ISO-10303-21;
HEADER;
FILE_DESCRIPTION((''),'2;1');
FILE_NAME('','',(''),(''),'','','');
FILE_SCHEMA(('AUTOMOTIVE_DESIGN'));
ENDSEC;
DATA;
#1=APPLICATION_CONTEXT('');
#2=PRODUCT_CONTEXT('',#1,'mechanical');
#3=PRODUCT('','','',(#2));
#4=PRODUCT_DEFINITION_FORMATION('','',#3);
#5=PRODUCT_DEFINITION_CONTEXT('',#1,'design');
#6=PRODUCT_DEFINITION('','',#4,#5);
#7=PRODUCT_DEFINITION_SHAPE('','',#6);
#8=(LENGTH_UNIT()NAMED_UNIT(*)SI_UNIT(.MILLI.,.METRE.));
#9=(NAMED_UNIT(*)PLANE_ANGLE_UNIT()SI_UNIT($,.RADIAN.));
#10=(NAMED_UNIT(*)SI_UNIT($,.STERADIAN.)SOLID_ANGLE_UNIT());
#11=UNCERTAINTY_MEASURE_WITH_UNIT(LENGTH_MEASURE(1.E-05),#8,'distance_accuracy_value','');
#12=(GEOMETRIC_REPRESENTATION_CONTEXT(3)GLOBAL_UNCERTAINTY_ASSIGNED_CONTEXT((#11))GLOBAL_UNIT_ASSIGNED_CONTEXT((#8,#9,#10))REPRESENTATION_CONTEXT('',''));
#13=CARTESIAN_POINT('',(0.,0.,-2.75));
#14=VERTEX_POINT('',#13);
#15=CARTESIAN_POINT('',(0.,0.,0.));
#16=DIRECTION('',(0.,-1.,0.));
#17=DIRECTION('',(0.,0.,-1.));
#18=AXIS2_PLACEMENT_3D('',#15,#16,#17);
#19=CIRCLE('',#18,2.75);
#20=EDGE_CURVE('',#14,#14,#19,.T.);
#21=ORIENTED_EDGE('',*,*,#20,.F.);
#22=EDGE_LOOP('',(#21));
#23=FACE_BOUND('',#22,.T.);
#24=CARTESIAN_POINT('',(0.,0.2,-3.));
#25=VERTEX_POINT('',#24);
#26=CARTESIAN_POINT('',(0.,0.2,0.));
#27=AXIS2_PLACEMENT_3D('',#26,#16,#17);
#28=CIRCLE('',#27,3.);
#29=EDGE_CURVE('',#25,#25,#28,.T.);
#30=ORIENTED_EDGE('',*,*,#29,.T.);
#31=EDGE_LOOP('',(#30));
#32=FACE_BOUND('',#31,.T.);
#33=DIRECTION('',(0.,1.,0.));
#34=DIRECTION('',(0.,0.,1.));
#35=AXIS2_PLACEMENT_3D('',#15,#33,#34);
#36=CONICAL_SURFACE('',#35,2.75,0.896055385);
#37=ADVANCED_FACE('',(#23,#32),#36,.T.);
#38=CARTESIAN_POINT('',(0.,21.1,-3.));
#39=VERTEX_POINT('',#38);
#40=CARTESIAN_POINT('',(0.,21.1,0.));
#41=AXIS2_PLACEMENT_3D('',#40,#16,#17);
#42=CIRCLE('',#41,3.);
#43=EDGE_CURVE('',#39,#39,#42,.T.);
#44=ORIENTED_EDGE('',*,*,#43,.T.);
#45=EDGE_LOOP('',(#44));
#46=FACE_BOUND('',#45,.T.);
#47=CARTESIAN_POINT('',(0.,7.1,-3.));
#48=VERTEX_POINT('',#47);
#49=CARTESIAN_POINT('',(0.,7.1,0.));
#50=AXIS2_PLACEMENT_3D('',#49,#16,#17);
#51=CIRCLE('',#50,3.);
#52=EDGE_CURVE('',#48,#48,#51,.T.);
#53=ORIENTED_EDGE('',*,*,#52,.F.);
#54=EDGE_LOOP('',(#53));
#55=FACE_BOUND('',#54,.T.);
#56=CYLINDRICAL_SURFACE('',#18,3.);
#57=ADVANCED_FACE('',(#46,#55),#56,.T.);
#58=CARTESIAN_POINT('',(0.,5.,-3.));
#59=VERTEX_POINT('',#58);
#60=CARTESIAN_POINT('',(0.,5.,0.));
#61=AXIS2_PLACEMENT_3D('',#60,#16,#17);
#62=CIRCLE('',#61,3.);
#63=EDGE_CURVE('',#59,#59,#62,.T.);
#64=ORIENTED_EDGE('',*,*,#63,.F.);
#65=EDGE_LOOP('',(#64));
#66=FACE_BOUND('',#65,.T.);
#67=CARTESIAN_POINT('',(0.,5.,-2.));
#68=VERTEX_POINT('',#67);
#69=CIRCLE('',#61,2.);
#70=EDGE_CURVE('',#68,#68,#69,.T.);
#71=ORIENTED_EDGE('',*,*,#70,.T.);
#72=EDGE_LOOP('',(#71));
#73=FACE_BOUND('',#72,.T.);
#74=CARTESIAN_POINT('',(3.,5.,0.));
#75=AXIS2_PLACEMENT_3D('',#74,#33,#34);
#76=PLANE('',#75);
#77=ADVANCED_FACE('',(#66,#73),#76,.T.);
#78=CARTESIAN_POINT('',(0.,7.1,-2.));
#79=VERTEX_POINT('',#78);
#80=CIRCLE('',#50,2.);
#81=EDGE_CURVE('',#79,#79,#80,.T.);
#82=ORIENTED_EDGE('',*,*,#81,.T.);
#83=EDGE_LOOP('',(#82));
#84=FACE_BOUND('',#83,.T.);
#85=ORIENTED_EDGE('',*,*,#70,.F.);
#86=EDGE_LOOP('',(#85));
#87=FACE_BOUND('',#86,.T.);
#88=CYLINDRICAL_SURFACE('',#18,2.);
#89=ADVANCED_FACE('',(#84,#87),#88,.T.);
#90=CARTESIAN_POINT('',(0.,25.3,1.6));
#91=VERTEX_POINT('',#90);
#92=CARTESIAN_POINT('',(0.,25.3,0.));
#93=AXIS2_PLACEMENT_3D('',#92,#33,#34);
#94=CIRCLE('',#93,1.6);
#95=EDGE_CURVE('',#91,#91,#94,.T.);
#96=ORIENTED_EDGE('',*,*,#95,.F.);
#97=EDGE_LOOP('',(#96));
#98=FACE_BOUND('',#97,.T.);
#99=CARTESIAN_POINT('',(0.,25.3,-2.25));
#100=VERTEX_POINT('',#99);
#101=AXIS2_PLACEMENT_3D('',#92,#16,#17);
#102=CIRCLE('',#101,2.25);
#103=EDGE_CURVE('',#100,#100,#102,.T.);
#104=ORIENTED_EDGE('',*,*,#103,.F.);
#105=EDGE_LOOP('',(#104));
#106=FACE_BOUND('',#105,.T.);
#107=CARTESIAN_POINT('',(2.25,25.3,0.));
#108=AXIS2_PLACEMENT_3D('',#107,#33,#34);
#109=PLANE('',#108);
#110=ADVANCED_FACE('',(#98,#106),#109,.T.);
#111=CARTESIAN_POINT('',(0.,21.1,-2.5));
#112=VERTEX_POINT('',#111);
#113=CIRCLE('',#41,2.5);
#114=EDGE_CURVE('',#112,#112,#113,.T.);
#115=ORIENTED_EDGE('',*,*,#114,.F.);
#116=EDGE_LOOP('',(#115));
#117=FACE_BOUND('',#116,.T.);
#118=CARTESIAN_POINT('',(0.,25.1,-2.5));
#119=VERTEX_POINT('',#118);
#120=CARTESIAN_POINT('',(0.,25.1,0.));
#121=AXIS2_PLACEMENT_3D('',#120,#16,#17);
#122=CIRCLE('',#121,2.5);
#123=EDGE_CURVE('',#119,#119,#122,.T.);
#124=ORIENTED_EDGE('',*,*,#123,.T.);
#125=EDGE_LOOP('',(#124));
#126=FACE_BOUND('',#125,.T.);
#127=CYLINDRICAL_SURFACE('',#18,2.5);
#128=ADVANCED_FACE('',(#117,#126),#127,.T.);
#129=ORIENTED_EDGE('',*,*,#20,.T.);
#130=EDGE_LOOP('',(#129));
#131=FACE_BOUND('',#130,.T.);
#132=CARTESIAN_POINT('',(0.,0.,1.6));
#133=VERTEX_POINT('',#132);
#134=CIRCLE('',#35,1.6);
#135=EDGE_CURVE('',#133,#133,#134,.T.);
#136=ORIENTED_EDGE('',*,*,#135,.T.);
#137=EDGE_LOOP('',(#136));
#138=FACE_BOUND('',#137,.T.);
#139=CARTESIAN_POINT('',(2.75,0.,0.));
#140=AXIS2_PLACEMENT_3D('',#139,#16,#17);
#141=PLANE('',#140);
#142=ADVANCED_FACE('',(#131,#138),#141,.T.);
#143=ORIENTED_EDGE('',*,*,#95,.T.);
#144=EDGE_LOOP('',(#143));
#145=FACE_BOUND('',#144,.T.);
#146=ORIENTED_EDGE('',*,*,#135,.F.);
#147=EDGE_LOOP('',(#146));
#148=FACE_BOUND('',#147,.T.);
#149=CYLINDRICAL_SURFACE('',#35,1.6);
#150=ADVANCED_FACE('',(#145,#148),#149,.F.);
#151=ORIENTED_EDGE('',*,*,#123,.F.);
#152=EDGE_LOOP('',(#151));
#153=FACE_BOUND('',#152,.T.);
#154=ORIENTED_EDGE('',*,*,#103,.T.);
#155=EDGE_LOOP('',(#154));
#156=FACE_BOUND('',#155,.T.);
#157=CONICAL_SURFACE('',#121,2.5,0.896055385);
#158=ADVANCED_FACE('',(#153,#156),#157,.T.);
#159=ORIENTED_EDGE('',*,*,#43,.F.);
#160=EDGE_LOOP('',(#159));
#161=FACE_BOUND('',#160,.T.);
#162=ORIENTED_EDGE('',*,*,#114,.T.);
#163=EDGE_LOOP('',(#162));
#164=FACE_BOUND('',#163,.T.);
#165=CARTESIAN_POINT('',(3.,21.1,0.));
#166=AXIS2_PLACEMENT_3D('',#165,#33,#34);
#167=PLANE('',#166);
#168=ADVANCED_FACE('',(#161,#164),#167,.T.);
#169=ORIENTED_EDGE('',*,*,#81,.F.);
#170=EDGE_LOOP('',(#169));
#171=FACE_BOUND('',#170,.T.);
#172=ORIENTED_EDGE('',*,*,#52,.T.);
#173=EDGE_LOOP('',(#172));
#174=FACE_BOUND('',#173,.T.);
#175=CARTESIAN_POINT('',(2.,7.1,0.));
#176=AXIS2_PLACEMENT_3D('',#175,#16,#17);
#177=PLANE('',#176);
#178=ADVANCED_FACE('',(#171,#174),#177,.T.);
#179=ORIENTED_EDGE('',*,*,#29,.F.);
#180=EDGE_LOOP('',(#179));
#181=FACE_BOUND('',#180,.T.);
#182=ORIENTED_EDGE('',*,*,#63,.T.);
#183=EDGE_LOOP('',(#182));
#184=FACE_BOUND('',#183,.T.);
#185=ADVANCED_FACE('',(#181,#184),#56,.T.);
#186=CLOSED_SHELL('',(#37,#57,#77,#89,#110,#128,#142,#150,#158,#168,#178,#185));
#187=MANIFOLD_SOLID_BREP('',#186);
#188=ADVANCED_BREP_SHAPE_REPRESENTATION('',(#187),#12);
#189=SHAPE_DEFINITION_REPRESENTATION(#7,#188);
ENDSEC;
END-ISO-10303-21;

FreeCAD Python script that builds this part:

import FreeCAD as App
import Part
import Sketcher
from FreeCAD import Vector

doc = App.newDocument("Part")
body = doc.addObject("PartDesign::Body", "Body")

# Sketch on XY plane
sketch1 = body.newObject("Sketcher::SketchObject", "Sketch")
sketch1.AttachmentSupport = (doc.getObject("XY_Plane"), [""])
sketch1.MapMode = "FlatFace"
sketch1.addGeometry(Part.LineSegment(Vector(2.75, 0, 0), Vector(3, 0.2, 0)), False)
sketch1.addGeometry(Part.LineSegment(Vector(3, 0.2, 0), Vector(3, 5, 0)), False)
sketch1.addGeometry(Part.LineSegment(Vector(3, 5, 0), Vector(2, 5, 0)), False)
sketch1.addGeometry(Part.LineSegment(Vector(2, 5, 0), Vector(2, 7.1, 0)), False)
sketch1.addGeometry(Part.LineSegment(Vector(2, 7.1, 0), Vector(3, 7.1, 0)), False)
sketch1.addGeometry(Part.LineSegment(Vector(3, 7.1, 0), Vector(3, 21.1, 0)), False)
sketch1.addGeometry(Part.LineSegment(Vector(3, 21.1, 0), Vector(2.5, 21.1, 0)), False)
sketch1.addGeometry(Part.LineSegment(Vector(2.5, 21.1, 0), Vector(2.5, 25.1, 0)), False)
sketch1.addGeometry(Part.LineSegment(Vector(2.5, 25.1, 0), Vector(2.25, 25.3, 0)), False)
sketch1.addGeometry(Part.LineSegment(Vector(2.25, 25.3, 0), Vector(0, 25.3, 0)), False)
sketch1.addGeometry(Part.LineSegment(Vector(0, 25.3, 0), Vector(0, 0, 0)), False)
sketch1.addGeometry(Part.LineSegment(Vector(0, 0, 0), Vector(2.75, 0, 0)), False)
sketch1.addConstraint(Sketcher.Constraint("Coincident", 0, 2, 1, 1))
sketch1.addConstraint(Sketcher.Constraint("Coincident", 1, 2, 2, 1))
sketch1.addConstraint(Sketcher.Constraint("Coincident", 2, 2, 3, 1))
sketch1.addConstraint(Sketcher.Constraint("Coincident", 3, 2, 4, 1))
sketch1.addConstraint(Sketcher.Constraint("Coincident", 4, 2, 5, 1))
sketch1.addConstraint(Sketcher.Constraint("Coincident", 5, 2, 6, 1))
sketch1.addConstraint(Sketcher.Constraint("Coincident", 6, 2, 7, 1))
sketch1.addConstraint(Sketcher.Constraint("Coincident", 7, 2, 8, 1))
sketch1.addConstraint(Sketcher.Constraint("Coincident", 8, 2, 9, 1))
sketch1.addConstraint(Sketcher.Constraint("Coincident", 9, 2, 10, 1))
sketch1.addConstraint(Sketcher.Constraint("Coincident", 10, 2, 11, 1))
sketch1.addConstraint(Sketcher.Constraint("Coincident", 11, 2, 0, 1))
sketch1.addConstraint(Sketcher.Constraint("Vertical", 1))
sketch1.addConstraint(Sketcher.Constraint("Horizontal", 2))
sketch1.addConstraint(Sketcher.Constraint("Vertical", 3))
sketch1.addConstraint(Sketcher.Constraint("Horizontal", 4))
sketch1.addConstraint(Sketcher.Constraint("Vertical", 5))
sketch1.addConstraint(Sketcher.Constraint("Horizontal", 6))
sketch1.addConstraint(Sketcher.Constraint("Vertical", 7))
sketch1.addConstraint(Sketcher.Constraint("Horizontal", 9))
sketch1.addConstraint(Sketcher.Constraint("Vertical", 10))
sketch1.addConstraint(Sketcher.Constraint("Horizontal", 11))
sketch1.addConstraint(Sketcher.Constraint("Coincident", 10, 2, -1, 1))
sketch1.addConstraint(Sketcher.Constraint("Vertical", 1, 2, 4, 2))
sketch1.addConstraint(Sketcher.Constraint("Equal", 0, 8))
sketch1.addConstraint(Sketcher.Constraint("DistanceX", 2, 2, 2, 1, 1.0))
sketch1.addConstraint(Sketcher.Constraint("DistanceY", 5, 1, 5, 2, 14.0))
sketch1.addConstraint(Sketcher.Constraint("DistanceY", 7, 1, 7, 2, 4.0))
sketch1.addConstraint(Sketcher.Constraint("DistanceX", 6, 2, 6, 1, 0.5))
sketch1.addConstraint(Sketcher.Constraint("DistanceY", 1, 1, 1, 2, 4.8))
sketch1.addConstraint(Sketcher.Constraint("DistanceY", 3, 1, 3, 2, 2.1))
sketch1.addConstraint(Sketcher.Constraint("DistanceY", 10, 2, 10, 1, 25.3))
sketch1.addConstraint(Sketcher.Constraint("DistanceX", -1, 1, 0, 2, 3.0))
sketch1.addConstraint(Sketcher.Constraint("DistanceY", -1, 1, 1, 2, 5.0))
sketch1.addConstraint(Sketcher.Constraint("DistanceX", 9, 2, 9, 1, 2.25))
revolution = body.newObject("PartDesign::Revolution", "Revolution")
revolution.Profile = sketch1
revolution.ReferenceAxis = (sketch1, ["V_Axis"])
revolution.Angle = 360

# Sketch on XZ plane
sketch2 = body.newObject("Sketcher::SketchObject", "Sketch001")
sketch2.AttachmentSupport = (doc.getObject("XZ_Plane"), [""])
sketch2.MapMode = "FlatFace"
sketch2.AttachmentOffset = App.Placement(Vector(0, 0, -25.3), App.Rotation())
sketch2.addGeometry(Part.Circle(Vector(0, 0, 0), Vector(0, 0, 1), 1.6), False)
sketch2.addConstraint(Sketcher.Constraint("Coincident", 0, 3, -1, 1))
sketch2.addConstraint(Sketcher.Constraint("Diameter", 0, 3.2))
pocket1 = body.newObject("PartDesign::Pocket", "Pocket")
pocket1.Profile = sketch2
pocket1.Type = "ThroughAll"
pocket1.Reversed = True

doc.recompute()
